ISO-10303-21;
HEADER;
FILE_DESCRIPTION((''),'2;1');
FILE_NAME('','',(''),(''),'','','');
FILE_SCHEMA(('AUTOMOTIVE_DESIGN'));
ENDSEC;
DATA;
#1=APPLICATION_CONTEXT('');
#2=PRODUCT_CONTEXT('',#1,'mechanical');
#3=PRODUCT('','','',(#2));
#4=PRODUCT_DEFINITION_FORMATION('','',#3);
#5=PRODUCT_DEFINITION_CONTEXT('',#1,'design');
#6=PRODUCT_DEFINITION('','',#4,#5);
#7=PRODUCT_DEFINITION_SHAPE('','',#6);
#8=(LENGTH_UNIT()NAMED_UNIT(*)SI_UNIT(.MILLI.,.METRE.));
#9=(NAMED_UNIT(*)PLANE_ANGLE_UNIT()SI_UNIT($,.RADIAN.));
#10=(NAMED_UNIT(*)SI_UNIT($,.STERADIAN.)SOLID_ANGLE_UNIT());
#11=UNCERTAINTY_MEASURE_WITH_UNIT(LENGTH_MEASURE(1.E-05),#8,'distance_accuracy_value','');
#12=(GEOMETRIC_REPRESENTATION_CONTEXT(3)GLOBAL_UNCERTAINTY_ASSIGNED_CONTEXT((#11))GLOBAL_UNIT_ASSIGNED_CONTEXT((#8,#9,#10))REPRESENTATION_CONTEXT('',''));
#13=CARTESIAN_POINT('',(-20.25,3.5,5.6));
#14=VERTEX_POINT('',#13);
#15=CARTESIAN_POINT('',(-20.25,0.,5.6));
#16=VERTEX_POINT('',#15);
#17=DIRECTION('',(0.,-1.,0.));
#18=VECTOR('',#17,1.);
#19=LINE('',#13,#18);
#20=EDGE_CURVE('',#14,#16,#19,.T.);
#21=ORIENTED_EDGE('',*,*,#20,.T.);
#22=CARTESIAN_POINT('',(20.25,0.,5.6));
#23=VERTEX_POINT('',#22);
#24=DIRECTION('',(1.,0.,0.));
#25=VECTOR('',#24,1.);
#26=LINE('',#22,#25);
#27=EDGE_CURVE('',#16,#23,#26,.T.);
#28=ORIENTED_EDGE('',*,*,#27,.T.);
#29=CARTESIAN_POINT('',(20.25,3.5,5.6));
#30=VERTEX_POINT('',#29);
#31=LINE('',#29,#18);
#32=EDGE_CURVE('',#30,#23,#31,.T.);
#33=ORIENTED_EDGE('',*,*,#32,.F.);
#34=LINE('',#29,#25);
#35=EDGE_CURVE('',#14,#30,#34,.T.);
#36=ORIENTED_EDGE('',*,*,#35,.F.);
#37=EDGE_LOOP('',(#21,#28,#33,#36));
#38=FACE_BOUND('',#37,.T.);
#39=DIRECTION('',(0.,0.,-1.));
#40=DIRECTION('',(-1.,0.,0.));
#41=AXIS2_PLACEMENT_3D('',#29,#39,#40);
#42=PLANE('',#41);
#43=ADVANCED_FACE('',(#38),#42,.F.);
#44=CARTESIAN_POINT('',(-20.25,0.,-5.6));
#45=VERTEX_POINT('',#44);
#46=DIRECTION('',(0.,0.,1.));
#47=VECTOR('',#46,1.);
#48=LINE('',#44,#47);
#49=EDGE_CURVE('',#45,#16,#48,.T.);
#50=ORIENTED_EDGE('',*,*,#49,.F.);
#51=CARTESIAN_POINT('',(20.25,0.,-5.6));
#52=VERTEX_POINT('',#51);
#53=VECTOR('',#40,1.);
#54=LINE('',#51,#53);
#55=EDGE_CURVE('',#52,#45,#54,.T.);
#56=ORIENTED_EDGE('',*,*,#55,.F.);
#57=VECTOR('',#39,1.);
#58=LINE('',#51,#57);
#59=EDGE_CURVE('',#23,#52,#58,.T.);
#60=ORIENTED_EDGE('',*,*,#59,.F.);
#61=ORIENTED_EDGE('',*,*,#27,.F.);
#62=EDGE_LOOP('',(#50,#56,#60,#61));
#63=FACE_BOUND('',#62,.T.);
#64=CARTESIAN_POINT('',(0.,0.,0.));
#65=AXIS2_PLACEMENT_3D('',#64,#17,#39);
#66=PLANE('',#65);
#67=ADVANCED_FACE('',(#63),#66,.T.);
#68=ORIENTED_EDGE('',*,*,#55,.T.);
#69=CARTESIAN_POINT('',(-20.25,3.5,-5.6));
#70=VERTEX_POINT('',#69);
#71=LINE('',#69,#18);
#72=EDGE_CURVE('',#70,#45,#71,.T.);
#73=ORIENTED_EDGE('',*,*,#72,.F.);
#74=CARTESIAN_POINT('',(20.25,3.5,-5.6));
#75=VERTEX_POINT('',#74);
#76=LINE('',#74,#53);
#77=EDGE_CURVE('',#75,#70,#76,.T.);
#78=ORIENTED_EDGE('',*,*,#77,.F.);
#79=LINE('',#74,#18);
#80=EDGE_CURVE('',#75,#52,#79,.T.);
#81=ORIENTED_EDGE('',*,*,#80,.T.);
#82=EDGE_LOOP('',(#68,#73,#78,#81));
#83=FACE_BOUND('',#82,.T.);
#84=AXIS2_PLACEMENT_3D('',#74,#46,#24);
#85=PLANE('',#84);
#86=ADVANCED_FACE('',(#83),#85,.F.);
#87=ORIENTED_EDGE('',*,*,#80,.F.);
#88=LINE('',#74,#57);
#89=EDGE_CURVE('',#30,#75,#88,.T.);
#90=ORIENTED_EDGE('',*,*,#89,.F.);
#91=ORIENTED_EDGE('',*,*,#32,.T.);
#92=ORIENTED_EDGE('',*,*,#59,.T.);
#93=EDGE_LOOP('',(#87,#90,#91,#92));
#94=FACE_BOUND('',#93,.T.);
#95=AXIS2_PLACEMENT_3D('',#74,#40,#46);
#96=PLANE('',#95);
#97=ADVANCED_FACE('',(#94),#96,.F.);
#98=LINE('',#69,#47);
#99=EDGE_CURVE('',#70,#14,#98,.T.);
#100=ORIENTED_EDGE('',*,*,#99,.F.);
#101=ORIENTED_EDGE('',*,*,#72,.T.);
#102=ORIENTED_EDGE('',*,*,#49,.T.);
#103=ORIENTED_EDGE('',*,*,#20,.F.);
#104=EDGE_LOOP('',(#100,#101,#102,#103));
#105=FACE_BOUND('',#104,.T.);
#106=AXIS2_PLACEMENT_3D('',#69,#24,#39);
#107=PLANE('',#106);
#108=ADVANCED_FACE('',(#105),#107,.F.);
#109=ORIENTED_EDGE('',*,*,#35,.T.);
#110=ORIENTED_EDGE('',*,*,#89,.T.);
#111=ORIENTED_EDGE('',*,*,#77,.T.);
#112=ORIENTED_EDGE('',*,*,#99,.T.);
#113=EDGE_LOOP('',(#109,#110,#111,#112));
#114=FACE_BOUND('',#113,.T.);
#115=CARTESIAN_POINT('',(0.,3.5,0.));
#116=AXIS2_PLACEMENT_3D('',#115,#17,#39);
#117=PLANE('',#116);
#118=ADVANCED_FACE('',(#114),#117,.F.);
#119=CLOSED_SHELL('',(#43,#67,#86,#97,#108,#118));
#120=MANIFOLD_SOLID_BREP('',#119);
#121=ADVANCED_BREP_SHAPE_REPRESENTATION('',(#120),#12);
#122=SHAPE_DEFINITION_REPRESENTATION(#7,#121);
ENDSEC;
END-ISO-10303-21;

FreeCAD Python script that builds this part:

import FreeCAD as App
import Part
import Sketcher


def add_polygon(sketch, points):
    """Adds a closed chain of lines whose ends are joined by coincident constraints."""
    first, n = sketch.GeometryCount, len(points)
    for a, b in zip(points, points[1:] + points[:1]):
        sketch.addGeometry(Part.LineSegment(App.Vector(*a, 0), App.Vector(*b, 0)), False)
    for i in range(n):
        sketch.addConstraint(Sketcher.Constraint("Coincident", first + i, 2, first + (i + 1) % n, 1))

doc = App.newDocument("Part")
body = doc.addObject("PartDesign::Body", "Body")

sketch1 = body.newObject("Sketcher::SketchObject", "Sketch")
sketch1.AttachmentSupport = (doc.getObject("XZ_Plane"), [""])
sketch1.MapMode = "FlatFace"
add_polygon(sketch1, [(-20.25, -5.6), (-20.25, 5.6), (20.25, 5.6), (20.25, -5.6)])
sketch1.addConstraint([
    Sketcher.Constraint("Vertical", 0),
    Sketcher.Constraint("Horizontal", 1),
    Sketcher.Constraint("Vertical", 2),
    Sketcher.Constraint("Horizontal", 3),
    Sketcher.Constraint("Symmetric", 0, 2, 2, 2, -1, 1),
    Sketcher.Constraint("DistanceX", 1, 1, 1, 2, 40.5),
    Sketcher.Constraint("DistanceY", 0, 1, 0, 2, 11.2),
])
pad1 = body.newObject("PartDesign::Pad", "Pad")
pad1.Profile = sketch1
pad1.Length = 3.5
pad1.Reversed = True

doc.recompute()
